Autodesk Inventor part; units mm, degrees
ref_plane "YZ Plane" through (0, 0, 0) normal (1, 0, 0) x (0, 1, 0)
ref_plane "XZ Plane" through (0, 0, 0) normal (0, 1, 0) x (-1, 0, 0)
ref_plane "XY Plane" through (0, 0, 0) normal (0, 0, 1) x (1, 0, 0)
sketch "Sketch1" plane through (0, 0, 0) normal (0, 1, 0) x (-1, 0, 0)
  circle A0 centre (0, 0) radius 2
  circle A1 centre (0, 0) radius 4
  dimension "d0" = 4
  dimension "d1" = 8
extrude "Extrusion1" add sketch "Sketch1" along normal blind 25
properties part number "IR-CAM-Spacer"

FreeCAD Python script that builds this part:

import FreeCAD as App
import Part
import Sketcher
from FreeCAD import Vector

doc = App.newDocument("Part")
body = doc.addObject("PartDesign::Body", "Body")

# Sketch on XZ plane
sketch1 = body.newObject("Sketcher::SketchObject", "Sketch")
sketch1.AttachmentSupport = (doc.getObject("XZ_Plane"), [""])
sketch1.MapMode = "FlatFace"
sketch1.addGeometry(Part.Circle(Vector(0, 0, 0), Vector(0, 0, 1), 4), False)
sketch1.addGeometry(Part.Circle(Vector(0, 0, 0), Vector(0, 0, 1), 2), False)
sketch1.addConstraint(Sketcher.Constraint("Coincident", 0, 3, -1, 1))
sketch1.addConstraint(Sketcher.Constraint("Coincident", 1, 3, -1, 1))
sketch1.addConstraint(Sketcher.Constraint("Diameter", 0, 8.0))
sketch1.addConstraint(Sketcher.Constraint("Diameter", 1, 4.0))
pad1 = body.newObject("PartDesign::Pad", "Pad")
pad1.Profile = sketch1
pad1.Length = 25
pad1.Reversed = True

doc.recompute()
